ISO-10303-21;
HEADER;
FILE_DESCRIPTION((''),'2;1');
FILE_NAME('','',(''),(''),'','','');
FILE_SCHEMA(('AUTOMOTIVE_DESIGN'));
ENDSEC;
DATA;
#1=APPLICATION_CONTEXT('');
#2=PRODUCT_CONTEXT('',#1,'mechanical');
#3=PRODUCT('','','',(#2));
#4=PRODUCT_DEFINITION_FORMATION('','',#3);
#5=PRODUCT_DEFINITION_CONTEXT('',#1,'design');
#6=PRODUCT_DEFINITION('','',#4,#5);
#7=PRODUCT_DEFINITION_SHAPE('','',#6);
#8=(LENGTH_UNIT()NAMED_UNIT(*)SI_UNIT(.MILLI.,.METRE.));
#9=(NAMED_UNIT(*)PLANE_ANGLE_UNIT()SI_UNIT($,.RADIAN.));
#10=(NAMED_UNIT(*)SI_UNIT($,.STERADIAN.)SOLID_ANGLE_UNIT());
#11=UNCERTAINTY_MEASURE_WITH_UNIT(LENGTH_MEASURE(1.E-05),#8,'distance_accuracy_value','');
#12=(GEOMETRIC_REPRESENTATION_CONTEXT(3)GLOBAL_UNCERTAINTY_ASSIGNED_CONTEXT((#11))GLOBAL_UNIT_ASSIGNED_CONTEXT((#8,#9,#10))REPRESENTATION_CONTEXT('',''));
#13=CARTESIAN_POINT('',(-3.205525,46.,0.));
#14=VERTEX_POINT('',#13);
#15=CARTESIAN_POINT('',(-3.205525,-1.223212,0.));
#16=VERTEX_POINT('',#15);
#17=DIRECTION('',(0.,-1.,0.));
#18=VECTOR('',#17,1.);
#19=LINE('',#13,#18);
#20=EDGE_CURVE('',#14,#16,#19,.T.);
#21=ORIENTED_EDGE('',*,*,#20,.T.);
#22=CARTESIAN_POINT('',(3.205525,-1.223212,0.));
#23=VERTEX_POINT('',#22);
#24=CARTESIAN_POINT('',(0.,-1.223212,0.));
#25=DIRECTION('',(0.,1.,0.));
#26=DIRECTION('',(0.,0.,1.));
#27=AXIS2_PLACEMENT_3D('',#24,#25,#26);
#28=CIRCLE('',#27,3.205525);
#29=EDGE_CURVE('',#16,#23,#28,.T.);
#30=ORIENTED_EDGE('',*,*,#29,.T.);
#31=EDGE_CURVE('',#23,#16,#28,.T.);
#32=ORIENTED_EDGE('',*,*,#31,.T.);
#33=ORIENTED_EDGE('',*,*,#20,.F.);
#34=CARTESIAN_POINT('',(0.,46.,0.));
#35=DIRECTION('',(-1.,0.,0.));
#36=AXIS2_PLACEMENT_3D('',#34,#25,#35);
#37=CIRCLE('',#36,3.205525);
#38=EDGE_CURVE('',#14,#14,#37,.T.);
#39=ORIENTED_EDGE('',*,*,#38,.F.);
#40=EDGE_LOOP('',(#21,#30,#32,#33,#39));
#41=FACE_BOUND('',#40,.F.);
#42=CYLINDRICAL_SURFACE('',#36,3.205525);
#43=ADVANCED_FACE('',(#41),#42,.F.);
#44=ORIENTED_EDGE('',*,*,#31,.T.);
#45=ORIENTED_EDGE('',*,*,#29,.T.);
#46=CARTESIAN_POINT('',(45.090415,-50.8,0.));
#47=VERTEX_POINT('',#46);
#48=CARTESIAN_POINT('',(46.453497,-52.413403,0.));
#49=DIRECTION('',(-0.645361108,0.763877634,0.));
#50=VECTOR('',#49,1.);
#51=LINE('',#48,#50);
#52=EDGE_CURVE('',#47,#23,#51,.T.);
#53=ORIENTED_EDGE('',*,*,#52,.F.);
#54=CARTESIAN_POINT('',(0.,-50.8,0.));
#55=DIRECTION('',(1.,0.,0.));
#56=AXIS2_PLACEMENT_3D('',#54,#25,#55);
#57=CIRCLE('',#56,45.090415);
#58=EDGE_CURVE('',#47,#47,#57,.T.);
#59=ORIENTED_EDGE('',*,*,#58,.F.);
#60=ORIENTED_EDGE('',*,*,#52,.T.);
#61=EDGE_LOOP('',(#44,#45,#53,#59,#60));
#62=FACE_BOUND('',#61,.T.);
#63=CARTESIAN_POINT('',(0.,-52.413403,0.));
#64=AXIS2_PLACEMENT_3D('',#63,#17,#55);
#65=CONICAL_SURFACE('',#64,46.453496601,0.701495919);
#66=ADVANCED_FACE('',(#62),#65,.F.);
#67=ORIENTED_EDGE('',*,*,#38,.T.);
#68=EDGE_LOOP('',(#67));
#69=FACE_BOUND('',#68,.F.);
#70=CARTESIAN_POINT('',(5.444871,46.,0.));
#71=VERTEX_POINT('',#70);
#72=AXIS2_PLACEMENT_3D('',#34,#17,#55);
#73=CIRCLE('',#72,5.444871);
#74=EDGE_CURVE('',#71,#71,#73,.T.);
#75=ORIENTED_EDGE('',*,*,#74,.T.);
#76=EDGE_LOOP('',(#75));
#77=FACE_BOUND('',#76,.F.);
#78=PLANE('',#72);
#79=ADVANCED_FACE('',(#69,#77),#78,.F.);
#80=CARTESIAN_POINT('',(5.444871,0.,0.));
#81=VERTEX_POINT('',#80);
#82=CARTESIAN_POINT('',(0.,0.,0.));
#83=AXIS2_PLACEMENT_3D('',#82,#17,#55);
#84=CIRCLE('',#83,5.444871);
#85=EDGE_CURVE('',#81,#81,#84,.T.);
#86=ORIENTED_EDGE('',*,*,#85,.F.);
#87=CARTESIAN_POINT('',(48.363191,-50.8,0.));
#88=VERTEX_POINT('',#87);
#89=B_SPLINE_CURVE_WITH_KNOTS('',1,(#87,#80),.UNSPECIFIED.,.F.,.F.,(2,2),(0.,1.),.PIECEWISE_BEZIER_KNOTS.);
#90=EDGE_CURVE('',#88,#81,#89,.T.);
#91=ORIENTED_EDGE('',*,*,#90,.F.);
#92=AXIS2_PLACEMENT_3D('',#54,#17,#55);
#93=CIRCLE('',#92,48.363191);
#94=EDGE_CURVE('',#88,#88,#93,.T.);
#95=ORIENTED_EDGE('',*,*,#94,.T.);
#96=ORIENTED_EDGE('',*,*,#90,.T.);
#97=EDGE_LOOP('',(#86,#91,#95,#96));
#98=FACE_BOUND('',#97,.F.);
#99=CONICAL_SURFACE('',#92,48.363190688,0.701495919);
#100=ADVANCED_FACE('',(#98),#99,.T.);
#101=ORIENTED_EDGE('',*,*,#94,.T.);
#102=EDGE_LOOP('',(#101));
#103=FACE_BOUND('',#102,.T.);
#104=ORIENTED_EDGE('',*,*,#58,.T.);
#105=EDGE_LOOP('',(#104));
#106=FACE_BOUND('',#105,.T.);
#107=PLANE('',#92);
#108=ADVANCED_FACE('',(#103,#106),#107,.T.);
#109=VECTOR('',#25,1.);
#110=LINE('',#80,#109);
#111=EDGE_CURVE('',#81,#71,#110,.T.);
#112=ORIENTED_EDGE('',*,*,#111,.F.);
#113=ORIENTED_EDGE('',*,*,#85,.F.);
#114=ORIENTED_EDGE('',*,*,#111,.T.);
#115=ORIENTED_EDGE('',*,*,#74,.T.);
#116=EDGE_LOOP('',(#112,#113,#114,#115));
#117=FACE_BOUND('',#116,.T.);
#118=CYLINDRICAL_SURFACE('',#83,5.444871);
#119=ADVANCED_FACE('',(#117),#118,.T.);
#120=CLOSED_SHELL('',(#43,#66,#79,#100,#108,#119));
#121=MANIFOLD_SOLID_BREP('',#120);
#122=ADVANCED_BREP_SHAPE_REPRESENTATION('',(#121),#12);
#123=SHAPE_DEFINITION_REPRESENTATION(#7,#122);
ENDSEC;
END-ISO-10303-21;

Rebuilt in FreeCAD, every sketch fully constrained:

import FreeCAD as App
import Part
import Sketcher

V = App.Vector


def faces_at(feature, points):
    """Names of the faces that lie closest to the given points."""
    faces = feature.Shape.Faces
    near = lambda p: min(range(len(faces)), key=lambda i: faces[i].distToShape(Part.Vertex(*p))[0])
    return sorted({f"Face{near(p) + 1}" for p in points})

doc = App.newDocument("Part")
body = doc.addObject("PartDesign::Body", "Body")

sketch1 = body.newObject("Sketcher::SketchObject", "Sketch")
sketch1.AttachmentSupport = (doc.getObject("XZ_Plane"), [""])
sketch1.MapMode = "FlatFace"
sketch1.addGeometry(Part.Circle(V(0, 0, 0), V(0, 0, 1), 5), False)
sketch1.addConstraint(Sketcher.Constraint("Coincident", 0, 3, -1, 1))
sketch1.addConstraint(Sketcher.Constraint("Diameter", 0, 10.889743))
pad1 = body.newObject("PartDesign::Pad", "Pad")
pad1.Profile = sketch1
pad1.Length = 46
pad1.Reversed = True

sketch2 = body.newObject("Sketcher::SketchObject", "Sketch001")
sketch2.AttachmentSupport = (doc.getObject("XZ_Plane"), [""])
sketch2.MapMode = "FlatFace"
sketch2.AttachmentOffset = App.Placement(V(0, 0, 50.8), App.Rotation())
sketch2.addGeometry(Part.Circle(V(0, 0, 0), V(0, 0, 1), 48), False)
sketch2.addConstraint(Sketcher.Constraint("Coincident", 0, 3, -1, 1))
sketch2.addConstraint(Sketcher.Constraint("Diameter", 0, 96.726381))

sketch3 = body.newObject("Sketcher::SketchObject", "Sketch002")
sketch3.AttachmentSupport = (doc.getObject("XZ_Plane"), [""])
sketch3.MapMode = "FlatFace"
sketch3.addGeometry(Part.Circle(V(0, 0, 0), V(0, 0, 1), 5), False)
sketch3.addConstraint(Sketcher.Constraint("Coincident", 0, 3, -1, 1))
sketch3.addConstraint(Sketcher.Constraint("Diameter", 0, 10.889743))

additiveloft = body.newObject("PartDesign::AdditiveLoft", "AdditiveLoft")
additiveloft.Profile = sketch2
additiveloft.Sections = [sketch3]
doc.recompute()

thickness = body.newObject("PartDesign::Thickness", "Thickness")
thickness.Base = (additiveloft, faces_at(additiveloft, [(0, -50.8, 0)]))
thickness.Value = 2.5
thickness.Reversed = True
thickness.Join = "Intersection"

sketch4 = body.newObject("Sketcher::SketchObject", "Sketch003")
sketch4.AttachmentSupport = (doc.getObject("XZ_Plane"), [""])
sketch4.MapMode = "FlatFace"
sketch4.AttachmentOffset = App.Placement(V(0, 0, -46), App.Rotation())
sketch4.addGeometry(Part.Circle(V(0, 0, 0), V(0, 0, 1), 3.2), False)
sketch4.addConstraint(Sketcher.Constraint("Coincident", 0, 3, -1, 1))
sketch4.addConstraint(Sketcher.Constraint("Diameter", 0, 6.411051))
pocket1 = body.newObject("PartDesign::Pocket", "Pocket")
pocket1.Profile = sketch4
pocket1.Type = "ThroughAll"
pocket1.Reversed = True

doc.recompute()
